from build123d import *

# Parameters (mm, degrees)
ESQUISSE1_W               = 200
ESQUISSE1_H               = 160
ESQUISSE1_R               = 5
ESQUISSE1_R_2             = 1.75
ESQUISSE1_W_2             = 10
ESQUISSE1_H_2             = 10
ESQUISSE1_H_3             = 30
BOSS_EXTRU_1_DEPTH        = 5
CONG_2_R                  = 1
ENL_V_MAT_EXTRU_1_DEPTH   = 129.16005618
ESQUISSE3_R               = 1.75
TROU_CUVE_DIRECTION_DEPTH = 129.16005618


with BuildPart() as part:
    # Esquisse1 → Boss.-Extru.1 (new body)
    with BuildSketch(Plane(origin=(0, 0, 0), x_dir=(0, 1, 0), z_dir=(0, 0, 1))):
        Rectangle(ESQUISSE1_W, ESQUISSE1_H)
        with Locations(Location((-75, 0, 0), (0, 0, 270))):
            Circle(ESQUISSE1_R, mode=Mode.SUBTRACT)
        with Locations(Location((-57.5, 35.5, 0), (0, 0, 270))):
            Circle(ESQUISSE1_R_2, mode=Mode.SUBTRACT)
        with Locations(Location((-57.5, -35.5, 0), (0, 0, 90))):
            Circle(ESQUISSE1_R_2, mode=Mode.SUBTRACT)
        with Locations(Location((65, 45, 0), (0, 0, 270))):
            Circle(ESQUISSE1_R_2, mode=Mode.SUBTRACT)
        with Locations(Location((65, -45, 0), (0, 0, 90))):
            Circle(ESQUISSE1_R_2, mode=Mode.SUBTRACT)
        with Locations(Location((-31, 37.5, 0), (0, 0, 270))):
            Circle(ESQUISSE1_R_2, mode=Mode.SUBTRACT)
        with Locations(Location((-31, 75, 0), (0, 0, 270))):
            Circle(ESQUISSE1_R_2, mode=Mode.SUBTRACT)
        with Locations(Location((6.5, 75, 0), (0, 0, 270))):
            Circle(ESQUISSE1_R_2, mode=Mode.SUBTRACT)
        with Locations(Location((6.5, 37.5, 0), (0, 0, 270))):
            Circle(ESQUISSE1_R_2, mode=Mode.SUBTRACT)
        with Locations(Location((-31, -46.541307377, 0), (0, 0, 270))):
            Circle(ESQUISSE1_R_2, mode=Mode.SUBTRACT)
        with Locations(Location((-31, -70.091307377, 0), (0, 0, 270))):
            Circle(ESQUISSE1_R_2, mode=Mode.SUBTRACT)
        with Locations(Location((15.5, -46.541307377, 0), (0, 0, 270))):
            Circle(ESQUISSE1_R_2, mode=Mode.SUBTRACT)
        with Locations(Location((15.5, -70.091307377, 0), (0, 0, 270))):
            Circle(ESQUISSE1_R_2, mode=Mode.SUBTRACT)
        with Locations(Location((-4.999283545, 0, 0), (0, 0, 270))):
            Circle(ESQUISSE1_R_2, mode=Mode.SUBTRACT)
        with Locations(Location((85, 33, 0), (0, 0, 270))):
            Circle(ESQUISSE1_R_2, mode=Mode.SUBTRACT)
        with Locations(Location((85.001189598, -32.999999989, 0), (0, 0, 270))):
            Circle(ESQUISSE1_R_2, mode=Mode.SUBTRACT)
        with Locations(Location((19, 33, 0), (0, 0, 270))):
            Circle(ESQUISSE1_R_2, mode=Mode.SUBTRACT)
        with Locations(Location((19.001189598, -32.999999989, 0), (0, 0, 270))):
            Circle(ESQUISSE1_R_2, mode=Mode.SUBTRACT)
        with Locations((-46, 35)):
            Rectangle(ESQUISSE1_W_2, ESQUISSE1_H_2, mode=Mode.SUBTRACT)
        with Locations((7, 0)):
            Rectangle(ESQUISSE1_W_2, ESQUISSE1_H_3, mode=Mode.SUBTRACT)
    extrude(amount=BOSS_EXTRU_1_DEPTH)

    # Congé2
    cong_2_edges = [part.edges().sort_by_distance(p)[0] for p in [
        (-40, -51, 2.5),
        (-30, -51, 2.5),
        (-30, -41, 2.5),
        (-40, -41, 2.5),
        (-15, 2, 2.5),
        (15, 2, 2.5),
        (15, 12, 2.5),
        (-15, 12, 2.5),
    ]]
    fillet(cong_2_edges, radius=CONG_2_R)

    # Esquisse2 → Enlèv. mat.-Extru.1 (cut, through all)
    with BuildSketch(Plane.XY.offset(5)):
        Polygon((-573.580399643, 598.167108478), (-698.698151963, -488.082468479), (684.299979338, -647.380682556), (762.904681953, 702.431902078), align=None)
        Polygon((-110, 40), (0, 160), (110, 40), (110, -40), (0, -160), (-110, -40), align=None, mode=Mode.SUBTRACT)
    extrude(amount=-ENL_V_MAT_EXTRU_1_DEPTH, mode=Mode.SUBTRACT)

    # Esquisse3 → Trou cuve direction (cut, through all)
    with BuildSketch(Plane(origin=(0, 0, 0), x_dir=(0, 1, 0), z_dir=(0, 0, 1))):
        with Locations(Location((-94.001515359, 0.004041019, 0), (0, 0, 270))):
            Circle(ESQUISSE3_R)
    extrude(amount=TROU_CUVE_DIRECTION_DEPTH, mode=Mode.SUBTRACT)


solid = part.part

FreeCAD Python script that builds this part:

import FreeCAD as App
import Part
import Sketcher
from FreeCAD import Vector


def edges_at(feature, points):
    """Names of the edges that pass closest to the given points."""
    edges = feature.Shape.Edges
    near = lambda p: min(range(len(edges)), key=lambda i: edges[i].distToShape(Part.Vertex(*p))[0])
    return sorted({f"Edge{near(p) + 1}" for p in points})


def add_polygon(sketch, points):
    """Adds a closed chain of lines whose ends are joined by coincident constraints."""
    first, n = sketch.GeometryCount, len(points)
    for a, b in zip(points, points[1:] + points[:1]):
        sketch.addGeometry(Part.LineSegment(App.Vector(*a, 0), App.Vector(*b, 0)), False)
    for i in range(n):
        sketch.addConstraint(Sketcher.Constraint("Coincident", first + i, 2, first + (i + 1) % n, 1))

doc = App.newDocument("Part")
body = doc.addObject("PartDesign::Body", "Body")

# Sketch on XY plane
sketch1 = body.newObject("Sketcher::SketchObject", "Sketch")
sketch1.AttachmentSupport = (doc.getObject("XY_Plane"), [""])
sketch1.MapMode = "FlatFace"
add_polygon(sketch1, [(-80, -100), (80, -100), (80, 100), (-80, 100)])  # lines 0-3
sketch1.addGeometry(Part.Circle(Vector(35.5, -57.5, 0), Vector(0, 0, 1), 1.75), False)  # 4
sketch1.addGeometry(Part.Circle(Vector(70.091307, -31, 0), Vector(0, 0, 1), 1.75), False)  # 5
sketch1.addGeometry(Part.Circle(Vector(46.541307, -31, 0), Vector(0, 0, 1), 1.75), False)  # 6
sketch1.addGeometry(Part.Circle(Vector(0, -75, 0), Vector(0, 0, 1), 5), False)  # 7
sketch1.addGeometry(Part.Circle(Vector(0, -4.999284, 0), Vector(0, 0, 1), 1.75), False)  # 8
sketch1.addGeometry(Part.Circle(Vector(70.091307, 15.5, 0), Vector(0, 0, 1), 1.75), False)  # 9
sketch1.addGeometry(Part.Circle(Vector(46.541307, 15.5, 0), Vector(0, 0, 1), 1.75), False)  # 10
sketch1.addGeometry(Part.Circle(Vector(45, 65, 0), Vector(0, 0, 1), 1.75), False)  # 11
sketch1.addGeometry(Part.Circle(Vector(33, 19.00119, 0), Vector(0, 0, 1), 1.75), False)  # 12
add_polygon(sketch1, [(15, 12), (15, 2), (-15, 2), (-15, 12)])  # lines 13-16
sketch1.addGeometry(Part.Circle(Vector(33, 85.00119, 0), Vector(0, 0, 1), 1.75), False)  # 17
sketch1.addGeometry(Part.Circle(Vector(-35.5, -57.5, 0), Vector(0, 0, 1), 1.75), False)  # 18
add_polygon(sketch1, [(-30, -41), (-30, -51), (-40, -51), (-40, -41)])  # lines 19-22
sketch1.addGeometry(Part.Circle(Vector(-37.5, -31, 0), Vector(0, 0, 1), 1.75), False)  # 23
sketch1.addGeometry(Part.Circle(Vector(-75, -31, 0), Vector(0, 0, 1), 1.75), False)  # 24
sketch1.addGeometry(Part.Circle(Vector(-37.5, 6.5, 0), Vector(0, 0, 1), 1.75), False)  # 25
sketch1.addGeometry(Part.Circle(Vector(-33, 19, 0), Vector(0, 0, 1), 1.75), False)  # 26
sketch1.addGeometry(Part.Circle(Vector(-33, 85, 0), Vector(0, 0, 1), 1.75), False)  # 27
sketch1.addGeometry(Part.Circle(Vector(-75, 6.5, 0), Vector(0, 0, 1), 1.75), False)  # 28
sketch1.addGeometry(Part.Circle(Vector(-45, 65, 0), Vector(0, 0, 1), 1.75), False)  # 29
sketch1.addConstraint([
    Sketcher.Constraint("Horizontal", 0),
    Sketcher.Constraint("Vertical", 1),
    Sketcher.Constraint("Horizontal", 2),
    Sketcher.Constraint("Vertical", 3),
    Sketcher.Constraint("Vertical", 13),
    Sketcher.Constraint("Horizontal", 14),
    Sketcher.Constraint("Vertical", 15),
    Sketcher.Constraint("Horizontal", 16),
    Sketcher.Constraint("Vertical", 19),
    Sketcher.Constraint("Horizontal", 20),
    Sketcher.Constraint("Vertical", 21),
    Sketcher.Constraint("Horizontal", 22),
    Sketcher.Constraint("Equal", 4, 5),
    Sketcher.Constraint("Equal", 5, 6),
    Sketcher.Constraint("Equal", 6, 8),
    Sketcher.Constraint("Equal", 8, 9),
    Sketcher.Constraint("Equal", 9, 10),
    Sketcher.Constraint("Equal", 10, 11),
    Sketcher.Constraint("Equal", 11, 12),
    Sketcher.Constraint("Equal", 12, 17),
    Sketcher.Constraint("Equal", 17, 18),
    Sketcher.Constraint("Equal", 18, 23),
    Sketcher.Constraint("Equal", 23, 24),
    Sketcher.Constraint("Equal", 24, 25),
    Sketcher.Constraint("Equal", 25, 26),
    Sketcher.Constraint("Equal", 26, 27),
    Sketcher.Constraint("Equal", 27, 28),
    Sketcher.Constraint("Equal", 28, 29),
    Sketcher.Constraint("Symmetric", 0, 2, 2, 2, -1, 1),
    Sketcher.Constraint("Symmetric", 4, 3, 18, 3, -2),
    Sketcher.Constraint("Symmetric", 11, 3, 29, 3, -2),
    Sketcher.Constraint("PointOnObject", 7, 3, -2),
    Sketcher.Constraint("PointOnObject", 8, 3, -2),
    Sketcher.Constraint("Horizontal", 5, 3, 6, 3),
    Sketcher.Constraint("Horizontal", 9, 3, 10, 3),
    Sketcher.Constraint("Horizontal", 6, 3, 23, 3),
    Sketcher.Constraint("Horizontal", 23, 3, 24, 3),
    Sketcher.Constraint("Horizontal", 25, 3, 28, 3),
    Sketcher.Constraint("Vertical", 5, 3, 9, 3),
    Sketcher.Constraint("Vertical", 6, 3, 10, 3),
    Sketcher.Constraint("Vertical", 12, 3, 17, 3),
    Sketcher.Constraint("Vertical", 23, 3, 25, 3),
    Sketcher.Constraint("Vertical", 26, 3, 27, 3),
    Sketcher.Constraint("Vertical", 24, 3, 28, 3),
    Sketcher.Constraint("Equal", 22, 13),
    Sketcher.Constraint("Equal", 15, 19),
    Sketcher.Constraint("Diameter", 7, 10.0),
    Sketcher.Constraint("Diameter", 4, 3.5),
    Sketcher.Constraint("DistanceX", 0, 1, 0, 2, 160.0),
    Sketcher.Constraint("DistanceX", 14, 2, 14, 1, 30.0),
    Sketcher.Constraint("DistanceX", 20, 2, 20, 1, 10.0),
    Sketcher.Constraint("DistanceY", 1, 1, 1, 2, 200.0),
    Sketcher.Constraint("DistanceY", 5, 3, -1, 1, 31.0),
    Sketcher.Constraint("DistanceY", 7, 3, -1, 1, 75.0),
    Sketcher.Constraint("DistanceX", -1, 1, 11, 3, 45.0),
    Sketcher.Constraint("DistanceY", -1, 1, 11, 3, 65.0),
    Sketcher.Constraint("DistanceX", -1, 1, 12, 3, 33.0),
    Sketcher.Constraint("DistanceX", 24, 3, -1, 1, 75.0),
    Sketcher.Constraint("DistanceX", 26, 3, -1, 1, 33.0),
    Sketcher.Constraint("DistanceY", -1, 1, 26, 3, 19.0),
    Sketcher.Constraint("DistanceY", -1, 1, 27, 3, 85.0),
    Sketcher.Constraint("DistanceX", -1, 1, 13, 2, 15.0),
    Sketcher.Constraint("DistanceY", -1, 1, 13, 2, 2.0),
    Sketcher.Constraint("DistanceX", 19, 2, -1, 1, 30.0),
    Sketcher.Constraint("DistanceY", 19, 2, -1, 1, 51.0),
    Sketcher.Constraint("DistanceY", 4, 3, 9, 3, 73.0),
    Sketcher.Constraint("DistanceY", 12, 3, 17, 3, 66.0),
    Sketcher.Constraint("DistanceX", 18, 3, 4, 3, 71.0),
    Sketcher.Constraint("DistanceX", 23, 3, 18, 3, 2.0),
    Sketcher.Constraint("DistanceY", 18, 3, 25, 3, 64.0),
    Sketcher.Constraint("DistanceY", 4, 3, -1, 1, 57.5),
    Sketcher.Constraint("DistanceX", 6, 3, 5, 3, 23.55),
    Sketcher.Constraint("DistanceY", -1, 1, 12, 3, 19.00119),
    Sketcher.Constraint("DistanceX", -1, 1, 5, 3, 70.091307),
    Sketcher.Constraint("DistanceY", 8, 3, -1, 1, 4.999284),
])
pad1 = body.newObject("PartDesign::Pad", "Pad")
pad1.Profile = sketch1
pad1.Length = 5
doc.recompute()

fillet = body.newObject("PartDesign::Fillet", "Fillet")
fillet.Base = (pad1, edges_at(pad1, [
    (-40, -51, 2.5),
    (-30, -51, 2.5),
    (-30, -41, 2.5),
    (-40, -41, 2.5),
    (-15, 2, 2.5),
    (15, 2, 2.5),
    (15, 12, 2.5),
    (-15, 12, 2.5),
]))
fillet.Radius = 1

# Sketch on XY plane
sketch2 = body.newObject("Sketcher::SketchObject", "Sketch001")
sketch2.AttachmentSupport = (doc.getObject("XY_Plane"), [""])
sketch2.MapMode = "FlatFace"
sketch2.AttachmentOffset = App.Placement(Vector(0, 0, 5), App.Rotation())
add_polygon(sketch2, [(-573.5804, 598.167108), (-698.698152, -488.082468), (684.299979, -647.380683), (762.904682, 702.431902)])  # lines 0-3
add_polygon(sketch2, [(-110, -40), (-110, 40), (0, 160), (110, 40), (110, -40), (0, -160)])  # lines 4-9
sketch2.addConstraint([
    Sketcher.Constraint("Vertical", 4),
    Sketcher.Constraint("Vertical", 7),
    Sketcher.Constraint("Symmetric", 4, 2, 7, 2, -1, 1),
    Sketcher.Constraint("Symmetric", 5, 2, 8, 2, -1, 1),
    Sketcher.Constraint("PointOnObject", 5, 2, -2),
    Sketcher.Constraint("Perpendicular", 0, 1),
    Sketcher.Constraint("Parallel", 6, 9),
    Sketcher.Constraint("Horizontal", 4, 2, 6, 2),
    Sketcher.Constraint("DistanceY", 4, 1, 4, 2, 80.0),
    Sketcher.Constraint("DistanceX", 4, 2, -1, 1, 110.0),
    Sketcher.Constraint("DistanceY", -1, 1, 5, 2, 160.0),
    Sketcher.Constraint("DistanceX", 3, 2, -1, 1, 573.5804),
    Sketcher.Constraint("Distance", 0, 1093.431569),
    Sketcher.Constraint("Distance", 3, 1340.545979),
    Sketcher.Constraint("DistanceX", 0, 2, -1, 1, 698.698152),
    Sketcher.Constraint("DistanceY", 0, 2, -1, 1, 488.082468),
    Sketcher.Constraint("DistanceX", -1, 1, 1, 2, 684.299979),
    Sketcher.Constraint("DistanceX", -1, 1, 2, 2, 762.904682),
])
pocket1 = body.newObject("PartDesign::Pocket", "Pocket")
pocket1.Profile = sketch2
pocket1.Type = "ThroughAll"

# Sketch on XY plane
sketch3 = body.newObject("Sketcher::SketchObject", "Sketch002")
sketch3.AttachmentSupport = (doc.getObject("XY_Plane"), [""])
sketch3.MapMode = "FlatFace"
sketch3.addGeometry(Part.Circle(Vector(-0.004041, -94.001515, 0), Vector(0, 0, 1), 1.75), False)
sketch3.addConstraint([
    Sketcher.Constraint("Diameter", 0, 3.5),
    Sketcher.Constraint("DistanceX", 0, 3, -1, 1, 0.004041),
    Sketcher.Constraint("DistanceY", 0, 3, -1, 1, 94.001515),
])
pocket2 = body.newObject("PartDesign::Pocket", "Pocket001")
pocket2.Profile = sketch3
pocket2.Type = "ThroughAll"
pocket2.Reversed = True

doc.recompute()
